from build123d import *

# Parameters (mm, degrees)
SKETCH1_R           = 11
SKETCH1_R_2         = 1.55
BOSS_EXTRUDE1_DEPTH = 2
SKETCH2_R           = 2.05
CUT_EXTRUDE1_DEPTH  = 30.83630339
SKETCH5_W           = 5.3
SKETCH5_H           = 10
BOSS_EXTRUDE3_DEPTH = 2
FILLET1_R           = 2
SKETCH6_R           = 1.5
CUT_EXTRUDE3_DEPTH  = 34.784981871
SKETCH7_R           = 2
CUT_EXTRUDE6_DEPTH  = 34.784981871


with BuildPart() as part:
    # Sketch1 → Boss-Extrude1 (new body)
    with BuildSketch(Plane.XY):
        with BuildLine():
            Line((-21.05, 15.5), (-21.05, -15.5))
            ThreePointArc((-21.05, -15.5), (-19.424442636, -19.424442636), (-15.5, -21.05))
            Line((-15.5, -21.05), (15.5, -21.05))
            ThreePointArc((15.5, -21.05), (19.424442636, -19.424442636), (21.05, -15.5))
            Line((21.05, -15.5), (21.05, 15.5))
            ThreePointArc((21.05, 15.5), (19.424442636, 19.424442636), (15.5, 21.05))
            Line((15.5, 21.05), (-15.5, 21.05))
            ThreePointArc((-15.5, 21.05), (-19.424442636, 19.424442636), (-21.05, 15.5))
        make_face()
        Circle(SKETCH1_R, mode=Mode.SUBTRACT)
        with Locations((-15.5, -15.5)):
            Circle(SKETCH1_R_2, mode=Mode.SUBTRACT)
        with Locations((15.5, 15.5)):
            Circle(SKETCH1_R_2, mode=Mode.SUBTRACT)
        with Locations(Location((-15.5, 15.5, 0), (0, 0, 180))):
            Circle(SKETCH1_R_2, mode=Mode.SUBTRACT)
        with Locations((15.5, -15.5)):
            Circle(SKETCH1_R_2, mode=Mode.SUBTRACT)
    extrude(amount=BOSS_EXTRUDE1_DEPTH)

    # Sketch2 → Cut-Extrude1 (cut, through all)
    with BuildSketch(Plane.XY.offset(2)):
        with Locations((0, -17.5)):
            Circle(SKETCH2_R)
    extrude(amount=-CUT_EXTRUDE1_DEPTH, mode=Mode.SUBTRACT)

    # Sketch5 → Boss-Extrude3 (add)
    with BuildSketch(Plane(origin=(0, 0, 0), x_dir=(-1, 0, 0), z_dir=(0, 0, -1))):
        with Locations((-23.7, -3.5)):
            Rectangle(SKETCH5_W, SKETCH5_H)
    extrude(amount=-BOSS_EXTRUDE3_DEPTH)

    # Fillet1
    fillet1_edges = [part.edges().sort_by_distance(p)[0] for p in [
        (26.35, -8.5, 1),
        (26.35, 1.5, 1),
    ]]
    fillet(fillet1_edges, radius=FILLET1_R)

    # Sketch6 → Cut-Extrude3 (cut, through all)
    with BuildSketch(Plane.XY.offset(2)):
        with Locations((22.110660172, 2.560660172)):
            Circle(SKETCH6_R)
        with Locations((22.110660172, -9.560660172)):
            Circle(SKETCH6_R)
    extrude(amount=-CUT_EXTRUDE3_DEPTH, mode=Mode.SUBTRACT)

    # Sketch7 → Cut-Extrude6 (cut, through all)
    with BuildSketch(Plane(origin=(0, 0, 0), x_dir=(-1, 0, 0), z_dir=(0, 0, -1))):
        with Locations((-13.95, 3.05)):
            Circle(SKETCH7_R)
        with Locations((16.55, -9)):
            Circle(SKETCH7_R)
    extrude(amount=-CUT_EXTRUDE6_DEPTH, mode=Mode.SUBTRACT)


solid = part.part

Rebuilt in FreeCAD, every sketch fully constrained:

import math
import FreeCAD as App
import Part
import Sketcher


def edges_at(feature, points):
    """Names of the edges that pass closest to the given points."""
    edges = feature.Shape.Edges
    near = lambda p: min(range(len(edges)), key=lambda i: edges[i].distToShape(Part.Vertex(*p))[0])
    return sorted({f"Edge{near(p) + 1}" for p in points})

doc = App.newDocument("Part")
body = doc.addObject("PartDesign::Body", "Body")

sketch1 = body.newObject("Sketcher::SketchObject", "Sketch")
sketch1.AttachmentSupport = (doc.getObject("XY_Plane"), [""])
sketch1.MapMode = "FlatFace"
sketch1.addGeometry([
    Part.LineSegment(App.Vector(-21.05, 15.5, 0), App.Vector(-21.05, -15.5, 0)),
    Part.ArcOfCircle(Part.Circle(App.Vector(-15.5, -15.5, 0), App.Vector(0, 0, 1), 5.55), math.radians(180), math.radians(270)),
    Part.LineSegment(App.Vector(-15.5, -21.05, 0), App.Vector(15.5, -21.05, 0)),
    Part.ArcOfCircle(Part.Circle(App.Vector(15.5, -15.5, 0), App.Vector(0, 0, 1), 5.55), math.radians(-90), math.radians(0)),
    Part.LineSegment(App.Vector(21.05, -15.5, 0), App.Vector(21.05, 15.5, 0)),
    Part.ArcOfCircle(Part.Circle(App.Vector(15.5, 15.5, 0), App.Vector(0, 0, 1), 5.55), math.radians(0), math.radians(90)),
    Part.LineSegment(App.Vector(15.5, 21.05, 0), App.Vector(-15.5, 21.05, 0)),
    Part.ArcOfCircle(Part.Circle(App.Vector(-15.5, 15.5, 0), App.Vector(0, 0, 1), 5.55), math.radians(90), math.radians(180)),
    Part.Circle(App.Vector(-15.5, -15.5, 0), App.Vector(0, 0, 1), 1.55),
    Part.Circle(App.Vector(15.5, -15.5, 0), App.Vector(0, 0, 1), 1.55),
    Part.Circle(App.Vector(-15.5, 15.5, 0), App.Vector(0, 0, 1), 1.55),
    Part.Circle(App.Vector(0, 0, 0), App.Vector(0, 0, 1), 11),
    Part.Circle(App.Vector(15.5, 15.5, 0), App.Vector(0, 0, 1), 1.55),
], False)
sketch1.addConstraint([
    Sketcher.Constraint("Tangent", 0, 2, 1, 1),
    Sketcher.Constraint("Tangent", 1, 2, 2, 1),
    Sketcher.Constraint("Tangent", 2, 2, 3, 1),
    Sketcher.Constraint("Tangent", 3, 2, 4, 1),
    Sketcher.Constraint("Tangent", 4, 2, 5, 1),
    Sketcher.Constraint("Tangent", 5, 2, 6, 1),
    Sketcher.Constraint("Tangent", 6, 2, 7, 1),
    Sketcher.Constraint("Tangent", 7, 2, 0, 1),
    Sketcher.Constraint("Vertical", 0),
    Sketcher.Constraint("Horizontal", 2),
    Sketcher.Constraint("Vertical", 4),
    Sketcher.Constraint("Horizontal", 6),
    Sketcher.Constraint("Coincident", 11, 3, -1, 1),
    Sketcher.Constraint("Coincident", 8, 3, 1, 3),
    Sketcher.Constraint("Coincident", 9, 3, 3, 3),
    Sketcher.Constraint("Coincident", 10, 3, 7, 3),
    Sketcher.Constraint("Coincident", 12, 3, 5, 3),
    Sketcher.Constraint("Equal", 1, 3),
    Sketcher.Constraint("Equal", 3, 5),
    Sketcher.Constraint("Equal", 5, 7),
    Sketcher.Constraint("Equal", 8, 9),
    Sketcher.Constraint("Equal", 9, 10),
    Sketcher.Constraint("Equal", 10, 12),
    Sketcher.Constraint("Symmetric", 1, 3, 5, 3, -1, 1),
    Sketcher.Constraint("Equal", 6, 0),
    Sketcher.Constraint("Diameter", 11, 22.0),
    Sketcher.Constraint("Diameter", 8, 3.1),
    Sketcher.Constraint("DistanceX", 2, 1, 2, 2, 31.0),
    Sketcher.Constraint("Radius", 1, 5.55),
])
pad1 = body.newObject("PartDesign::Pad", "Pad")
pad1.Profile = sketch1
pad1.Length = 2

sketch2 = body.newObject("Sketcher::SketchObject", "Sketch001")
sketch2.AttachmentSupport = (doc.getObject("XY_Plane"), [""])
sketch2.MapMode = "FlatFace"
sketch2.AttachmentOffset = App.Placement(App.Vector(0, 0, 2), App.Rotation())
sketch2.addGeometry(Part.Circle(App.Vector(0, -17.5, 0), App.Vector(0, 0, 1), 2.05), False)
sketch2.addConstraint([
    Sketcher.Constraint("PointOnObject", 0, 3, -2),
    Sketcher.Constraint("Diameter", 0, 4.1),
    Sketcher.Constraint("DistanceY", 0, 3, -1, 1, 17.5),
])
pocket1 = body.newObject("PartDesign::Pocket", "Pocket")
pocket1.Profile = sketch2
pocket1.Type = "ThroughAll"

sketch3 = body.newObject("Sketcher::SketchObject", "Sketch002")
sketch3.AttachmentSupport = (doc.getObject("XY_Plane"), [""])
sketch3.MapMode = "FlatFace"
sketch3.addGeometry([
    Part.LineSegment(App.Vector(26.35, 1.5, 0), App.Vector(26.35, -8.5, 0)),
    Part.LineSegment(App.Vector(26.35, -8.5, 0), App.Vector(21.05, -8.5, 0)),
    Part.LineSegment(App.Vector(21.05, -8.5, 0), App.Vector(21.05, 1.5, 0)),
    Part.LineSegment(App.Vector(21.05, 1.5, 0), App.Vector(26.35, 1.5, 0)),
], False)
sketch3.addConstraint([
    Sketcher.Constraint("Coincident", 0, 2, 1, 1),
    Sketcher.Constraint("Coincident", 1, 2, 2, 1),
    Sketcher.Constraint("Coincident", 2, 2, 3, 1),
    Sketcher.Constraint("Coincident", 3, 2, 0, 1),
    Sketcher.Constraint("Vertical", 0),
    Sketcher.Constraint("Horizontal", 1),
    Sketcher.Constraint("Vertical", 2),
    Sketcher.Constraint("Horizontal", 3),
    Sketcher.Constraint("DistanceY", 0, 2, 0, 1, 10.0),
    Sketcher.Constraint("DistanceX", 1, 2, 1, 1, 5.3),
    Sketcher.Constraint("DistanceY", 0, 2, -1, 1, 8.5),
    Sketcher.Constraint("DistanceX", -1, 1, 0, 2, 26.35),
])
pad2 = body.newObject("PartDesign::Pad", "Pad001")
pad2.Profile = sketch3
pad2.Length = 2
doc.recompute()

fillet = body.newObject("PartDesign::Fillet", "Fillet")
fillet.Base = (pad2, edges_at(pad2, [(26.35, -8.5, 1), (26.35, 1.5, 1)]))
fillet.Radius = 2

sketch4 = body.newObject("Sketcher::SketchObject", "Sketch003")
sketch4.AttachmentSupport = (doc.getObject("XY_Plane"), [""])
sketch4.MapMode = "FlatFace"
sketch4.AttachmentOffset = App.Placement(App.Vector(0, 0, 2), App.Rotation())
sketch4.addGeometry([
    Part.Circle(App.Vector(22.11066, 2.56066, 0), App.Vector(0, 0, 1), 1.5),
    Part.Circle(App.Vector(22.11066, -9.56066, 0), App.Vector(0, 0, 1), 1.5),
], False)
sketch4.addConstraint([
    Sketcher.Constraint("Equal", 0, 1),
    Sketcher.Constraint("Vertical", 0, 3, 1, 3),
    Sketcher.Constraint("Diameter", 0, 3.0),
    Sketcher.Constraint("DistanceX", -1, 1, 0, 3, 22.11066),
    Sketcher.Constraint("DistanceY", -1, 1, 0, 3, 2.56066),
    Sketcher.Constraint("DistanceY", 1, 3, -1, 1, 9.56066),
])
pocket2 = body.newObject("PartDesign::Pocket", "Pocket001")
pocket2.Profile = sketch4
pocket2.Type = "ThroughAll"

sketch5 = body.newObject("Sketcher::SketchObject", "Sketch004")
sketch5.AttachmentSupport = (doc.getObject("XY_Plane"), [""])
sketch5.MapMode = "FlatFace"
sketch5.addGeometry([
    Part.Circle(App.Vector(13.95, 3.05, 0), App.Vector(0, 0, 1), 2),
    Part.Circle(App.Vector(-16.55, -9, 0), App.Vector(0, 0, 1), 2),
], False)
sketch5.addConstraint([
    Sketcher.Constraint("Equal", 0, 1),
    Sketcher.Constraint("Diameter", 0, 4.0),
    Sketcher.Constraint("DistanceY", 1, 3, -1, 1, 9.0),
    Sketcher.Constraint("DistanceX", 1, 3, 0, 3, 30.5),
    Sketcher.Constraint("DistanceX", -1, 1, 0, 3, 13.95),
    Sketcher.Constraint("DistanceY", -1, 1, 0, 3, 3.05),
])
pocket3 = body.newObject("PartDesign::Pocket", "Pocket002")
pocket3.Profile = sketch5
pocket3.Type = "ThroughAll"
pocket3.Reversed = True

doc.recompute()
